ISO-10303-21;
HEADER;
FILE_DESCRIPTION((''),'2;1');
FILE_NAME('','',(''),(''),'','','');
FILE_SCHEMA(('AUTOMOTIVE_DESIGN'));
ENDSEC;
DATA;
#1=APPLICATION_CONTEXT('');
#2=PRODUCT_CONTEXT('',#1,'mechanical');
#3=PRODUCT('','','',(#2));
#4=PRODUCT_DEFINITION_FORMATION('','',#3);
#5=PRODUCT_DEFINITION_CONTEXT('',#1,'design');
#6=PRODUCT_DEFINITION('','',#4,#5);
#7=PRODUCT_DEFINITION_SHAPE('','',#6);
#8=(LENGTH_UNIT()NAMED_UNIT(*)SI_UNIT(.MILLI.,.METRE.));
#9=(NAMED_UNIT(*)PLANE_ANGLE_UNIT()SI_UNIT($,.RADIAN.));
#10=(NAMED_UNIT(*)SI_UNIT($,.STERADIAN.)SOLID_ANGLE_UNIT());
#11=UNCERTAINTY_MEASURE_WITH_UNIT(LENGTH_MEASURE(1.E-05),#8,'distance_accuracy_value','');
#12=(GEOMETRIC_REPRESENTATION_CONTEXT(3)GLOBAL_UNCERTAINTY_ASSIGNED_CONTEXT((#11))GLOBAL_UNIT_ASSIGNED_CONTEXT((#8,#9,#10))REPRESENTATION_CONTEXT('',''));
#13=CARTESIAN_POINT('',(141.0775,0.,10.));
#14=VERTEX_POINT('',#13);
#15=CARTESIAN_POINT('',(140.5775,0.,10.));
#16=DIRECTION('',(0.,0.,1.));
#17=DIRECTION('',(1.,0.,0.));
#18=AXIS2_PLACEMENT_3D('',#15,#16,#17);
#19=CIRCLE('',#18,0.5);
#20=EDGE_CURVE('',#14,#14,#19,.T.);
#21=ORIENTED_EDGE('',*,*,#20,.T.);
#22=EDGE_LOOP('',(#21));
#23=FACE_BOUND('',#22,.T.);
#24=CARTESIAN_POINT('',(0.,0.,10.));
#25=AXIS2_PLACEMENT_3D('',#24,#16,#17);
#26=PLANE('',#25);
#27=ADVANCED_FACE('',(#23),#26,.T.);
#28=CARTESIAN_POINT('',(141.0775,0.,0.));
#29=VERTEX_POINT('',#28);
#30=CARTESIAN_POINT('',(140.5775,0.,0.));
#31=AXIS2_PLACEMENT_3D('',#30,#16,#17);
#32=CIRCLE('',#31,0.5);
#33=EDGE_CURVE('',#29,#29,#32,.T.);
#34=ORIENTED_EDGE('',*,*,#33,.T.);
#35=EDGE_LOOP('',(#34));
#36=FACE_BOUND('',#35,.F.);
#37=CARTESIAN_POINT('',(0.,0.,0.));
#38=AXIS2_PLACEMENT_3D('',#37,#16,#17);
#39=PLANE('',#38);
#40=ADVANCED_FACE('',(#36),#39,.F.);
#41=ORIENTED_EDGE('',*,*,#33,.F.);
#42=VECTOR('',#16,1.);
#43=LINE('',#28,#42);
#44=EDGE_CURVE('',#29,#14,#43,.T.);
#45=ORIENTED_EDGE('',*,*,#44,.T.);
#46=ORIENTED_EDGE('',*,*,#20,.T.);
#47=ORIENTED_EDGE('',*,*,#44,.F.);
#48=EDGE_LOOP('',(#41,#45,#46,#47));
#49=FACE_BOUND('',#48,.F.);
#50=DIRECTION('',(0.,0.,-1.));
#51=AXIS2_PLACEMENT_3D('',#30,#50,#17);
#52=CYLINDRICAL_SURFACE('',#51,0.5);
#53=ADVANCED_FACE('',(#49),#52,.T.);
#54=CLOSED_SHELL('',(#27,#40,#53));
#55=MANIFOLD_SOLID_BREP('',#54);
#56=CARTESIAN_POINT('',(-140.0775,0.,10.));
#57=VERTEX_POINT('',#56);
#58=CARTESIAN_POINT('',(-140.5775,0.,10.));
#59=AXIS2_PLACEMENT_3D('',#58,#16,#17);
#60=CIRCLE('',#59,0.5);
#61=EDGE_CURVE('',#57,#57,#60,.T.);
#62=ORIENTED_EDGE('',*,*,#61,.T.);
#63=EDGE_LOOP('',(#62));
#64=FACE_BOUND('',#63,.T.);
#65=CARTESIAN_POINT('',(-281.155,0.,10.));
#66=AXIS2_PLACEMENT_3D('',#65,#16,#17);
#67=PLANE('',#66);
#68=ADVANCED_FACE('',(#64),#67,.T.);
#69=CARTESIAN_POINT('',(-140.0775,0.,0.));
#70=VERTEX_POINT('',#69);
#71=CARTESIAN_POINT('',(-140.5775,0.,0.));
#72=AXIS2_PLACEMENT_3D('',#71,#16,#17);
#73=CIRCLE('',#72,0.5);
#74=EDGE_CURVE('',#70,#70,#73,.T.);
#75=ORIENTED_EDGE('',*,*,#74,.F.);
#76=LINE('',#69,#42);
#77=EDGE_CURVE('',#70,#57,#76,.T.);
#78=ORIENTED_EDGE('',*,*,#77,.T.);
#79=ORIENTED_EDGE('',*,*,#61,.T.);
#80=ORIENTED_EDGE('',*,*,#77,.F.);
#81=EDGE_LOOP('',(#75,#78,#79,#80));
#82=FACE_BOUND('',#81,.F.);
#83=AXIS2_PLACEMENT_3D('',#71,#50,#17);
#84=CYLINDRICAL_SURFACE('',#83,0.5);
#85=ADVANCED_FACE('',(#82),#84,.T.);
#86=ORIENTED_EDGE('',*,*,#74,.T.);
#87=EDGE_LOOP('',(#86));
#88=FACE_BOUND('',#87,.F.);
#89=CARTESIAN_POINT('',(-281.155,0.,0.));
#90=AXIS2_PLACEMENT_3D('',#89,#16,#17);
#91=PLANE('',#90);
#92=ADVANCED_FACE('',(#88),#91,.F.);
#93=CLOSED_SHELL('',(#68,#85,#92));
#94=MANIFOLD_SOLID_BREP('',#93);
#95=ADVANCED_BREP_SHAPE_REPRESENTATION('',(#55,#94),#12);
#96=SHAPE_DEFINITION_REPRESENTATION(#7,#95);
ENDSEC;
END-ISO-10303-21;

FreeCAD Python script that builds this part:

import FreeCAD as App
import Part
import Sketcher

doc = App.newDocument("Part")
params = doc.addObject("Spreadsheet::Sheet", "Params")
for row, (alias, value) in enumerate([
    ("sketch1_diameter", "1 mm"),
    ("pad1_length", "10 mm"),
    ("linearpattern_pitch", "281.155 mm"),
], start=1):
    params.set(f"A{row}", alias)
    params.set(f"B{row}", "=" + value)
    params.setAlias(f"B{row}", alias)

body = doc.addObject("PartDesign::Body", "Body")
body.AllowCompound = True

# Sketch on XY plane
sketch1 = body.newObject("Sketcher::SketchObject", "Sketch")
sketch1.AttachmentSupport = (doc.getObject("XY_Plane"), [""])
sketch1.MapMode = "FlatFace"
sketch1.addGeometry(Part.Circle(App.Vector(140.5775, 0, 0), App.Vector(0, 0, 1), 0.5), False)
sketch1.addConstraint([
    Sketcher.Constraint("PointOnObject", 0, 3, -1),
    Sketcher.Constraint("Diameter", 0, 1.0),
    Sketcher.Constraint("DistanceX", -1, 1, 0, 3, 140.5775),
])
sketch1.setExpression("Constraints[1]", "Params.sketch1_diameter")
pad1 = body.newObject("PartDesign::Pad", "Pad")
pad1.Profile = sketch1
pad1.setExpression("Length", "Params.pad1_length")
doc.recompute()

linearpattern = body.newObject("PartDesign::LinearPattern", "LinearPattern")
linearpattern.Originals = [pad1]
linearpattern.Direction = (doc.getObject("X_Axis"), [""])
linearpattern.Mode = "offset"
linearpattern.setExpression("Offset", "Params.linearpattern_pitch")
linearpattern.Occurrences = 2
linearpattern.Reversed = True
body.Tip = linearpattern

doc.recompute()
